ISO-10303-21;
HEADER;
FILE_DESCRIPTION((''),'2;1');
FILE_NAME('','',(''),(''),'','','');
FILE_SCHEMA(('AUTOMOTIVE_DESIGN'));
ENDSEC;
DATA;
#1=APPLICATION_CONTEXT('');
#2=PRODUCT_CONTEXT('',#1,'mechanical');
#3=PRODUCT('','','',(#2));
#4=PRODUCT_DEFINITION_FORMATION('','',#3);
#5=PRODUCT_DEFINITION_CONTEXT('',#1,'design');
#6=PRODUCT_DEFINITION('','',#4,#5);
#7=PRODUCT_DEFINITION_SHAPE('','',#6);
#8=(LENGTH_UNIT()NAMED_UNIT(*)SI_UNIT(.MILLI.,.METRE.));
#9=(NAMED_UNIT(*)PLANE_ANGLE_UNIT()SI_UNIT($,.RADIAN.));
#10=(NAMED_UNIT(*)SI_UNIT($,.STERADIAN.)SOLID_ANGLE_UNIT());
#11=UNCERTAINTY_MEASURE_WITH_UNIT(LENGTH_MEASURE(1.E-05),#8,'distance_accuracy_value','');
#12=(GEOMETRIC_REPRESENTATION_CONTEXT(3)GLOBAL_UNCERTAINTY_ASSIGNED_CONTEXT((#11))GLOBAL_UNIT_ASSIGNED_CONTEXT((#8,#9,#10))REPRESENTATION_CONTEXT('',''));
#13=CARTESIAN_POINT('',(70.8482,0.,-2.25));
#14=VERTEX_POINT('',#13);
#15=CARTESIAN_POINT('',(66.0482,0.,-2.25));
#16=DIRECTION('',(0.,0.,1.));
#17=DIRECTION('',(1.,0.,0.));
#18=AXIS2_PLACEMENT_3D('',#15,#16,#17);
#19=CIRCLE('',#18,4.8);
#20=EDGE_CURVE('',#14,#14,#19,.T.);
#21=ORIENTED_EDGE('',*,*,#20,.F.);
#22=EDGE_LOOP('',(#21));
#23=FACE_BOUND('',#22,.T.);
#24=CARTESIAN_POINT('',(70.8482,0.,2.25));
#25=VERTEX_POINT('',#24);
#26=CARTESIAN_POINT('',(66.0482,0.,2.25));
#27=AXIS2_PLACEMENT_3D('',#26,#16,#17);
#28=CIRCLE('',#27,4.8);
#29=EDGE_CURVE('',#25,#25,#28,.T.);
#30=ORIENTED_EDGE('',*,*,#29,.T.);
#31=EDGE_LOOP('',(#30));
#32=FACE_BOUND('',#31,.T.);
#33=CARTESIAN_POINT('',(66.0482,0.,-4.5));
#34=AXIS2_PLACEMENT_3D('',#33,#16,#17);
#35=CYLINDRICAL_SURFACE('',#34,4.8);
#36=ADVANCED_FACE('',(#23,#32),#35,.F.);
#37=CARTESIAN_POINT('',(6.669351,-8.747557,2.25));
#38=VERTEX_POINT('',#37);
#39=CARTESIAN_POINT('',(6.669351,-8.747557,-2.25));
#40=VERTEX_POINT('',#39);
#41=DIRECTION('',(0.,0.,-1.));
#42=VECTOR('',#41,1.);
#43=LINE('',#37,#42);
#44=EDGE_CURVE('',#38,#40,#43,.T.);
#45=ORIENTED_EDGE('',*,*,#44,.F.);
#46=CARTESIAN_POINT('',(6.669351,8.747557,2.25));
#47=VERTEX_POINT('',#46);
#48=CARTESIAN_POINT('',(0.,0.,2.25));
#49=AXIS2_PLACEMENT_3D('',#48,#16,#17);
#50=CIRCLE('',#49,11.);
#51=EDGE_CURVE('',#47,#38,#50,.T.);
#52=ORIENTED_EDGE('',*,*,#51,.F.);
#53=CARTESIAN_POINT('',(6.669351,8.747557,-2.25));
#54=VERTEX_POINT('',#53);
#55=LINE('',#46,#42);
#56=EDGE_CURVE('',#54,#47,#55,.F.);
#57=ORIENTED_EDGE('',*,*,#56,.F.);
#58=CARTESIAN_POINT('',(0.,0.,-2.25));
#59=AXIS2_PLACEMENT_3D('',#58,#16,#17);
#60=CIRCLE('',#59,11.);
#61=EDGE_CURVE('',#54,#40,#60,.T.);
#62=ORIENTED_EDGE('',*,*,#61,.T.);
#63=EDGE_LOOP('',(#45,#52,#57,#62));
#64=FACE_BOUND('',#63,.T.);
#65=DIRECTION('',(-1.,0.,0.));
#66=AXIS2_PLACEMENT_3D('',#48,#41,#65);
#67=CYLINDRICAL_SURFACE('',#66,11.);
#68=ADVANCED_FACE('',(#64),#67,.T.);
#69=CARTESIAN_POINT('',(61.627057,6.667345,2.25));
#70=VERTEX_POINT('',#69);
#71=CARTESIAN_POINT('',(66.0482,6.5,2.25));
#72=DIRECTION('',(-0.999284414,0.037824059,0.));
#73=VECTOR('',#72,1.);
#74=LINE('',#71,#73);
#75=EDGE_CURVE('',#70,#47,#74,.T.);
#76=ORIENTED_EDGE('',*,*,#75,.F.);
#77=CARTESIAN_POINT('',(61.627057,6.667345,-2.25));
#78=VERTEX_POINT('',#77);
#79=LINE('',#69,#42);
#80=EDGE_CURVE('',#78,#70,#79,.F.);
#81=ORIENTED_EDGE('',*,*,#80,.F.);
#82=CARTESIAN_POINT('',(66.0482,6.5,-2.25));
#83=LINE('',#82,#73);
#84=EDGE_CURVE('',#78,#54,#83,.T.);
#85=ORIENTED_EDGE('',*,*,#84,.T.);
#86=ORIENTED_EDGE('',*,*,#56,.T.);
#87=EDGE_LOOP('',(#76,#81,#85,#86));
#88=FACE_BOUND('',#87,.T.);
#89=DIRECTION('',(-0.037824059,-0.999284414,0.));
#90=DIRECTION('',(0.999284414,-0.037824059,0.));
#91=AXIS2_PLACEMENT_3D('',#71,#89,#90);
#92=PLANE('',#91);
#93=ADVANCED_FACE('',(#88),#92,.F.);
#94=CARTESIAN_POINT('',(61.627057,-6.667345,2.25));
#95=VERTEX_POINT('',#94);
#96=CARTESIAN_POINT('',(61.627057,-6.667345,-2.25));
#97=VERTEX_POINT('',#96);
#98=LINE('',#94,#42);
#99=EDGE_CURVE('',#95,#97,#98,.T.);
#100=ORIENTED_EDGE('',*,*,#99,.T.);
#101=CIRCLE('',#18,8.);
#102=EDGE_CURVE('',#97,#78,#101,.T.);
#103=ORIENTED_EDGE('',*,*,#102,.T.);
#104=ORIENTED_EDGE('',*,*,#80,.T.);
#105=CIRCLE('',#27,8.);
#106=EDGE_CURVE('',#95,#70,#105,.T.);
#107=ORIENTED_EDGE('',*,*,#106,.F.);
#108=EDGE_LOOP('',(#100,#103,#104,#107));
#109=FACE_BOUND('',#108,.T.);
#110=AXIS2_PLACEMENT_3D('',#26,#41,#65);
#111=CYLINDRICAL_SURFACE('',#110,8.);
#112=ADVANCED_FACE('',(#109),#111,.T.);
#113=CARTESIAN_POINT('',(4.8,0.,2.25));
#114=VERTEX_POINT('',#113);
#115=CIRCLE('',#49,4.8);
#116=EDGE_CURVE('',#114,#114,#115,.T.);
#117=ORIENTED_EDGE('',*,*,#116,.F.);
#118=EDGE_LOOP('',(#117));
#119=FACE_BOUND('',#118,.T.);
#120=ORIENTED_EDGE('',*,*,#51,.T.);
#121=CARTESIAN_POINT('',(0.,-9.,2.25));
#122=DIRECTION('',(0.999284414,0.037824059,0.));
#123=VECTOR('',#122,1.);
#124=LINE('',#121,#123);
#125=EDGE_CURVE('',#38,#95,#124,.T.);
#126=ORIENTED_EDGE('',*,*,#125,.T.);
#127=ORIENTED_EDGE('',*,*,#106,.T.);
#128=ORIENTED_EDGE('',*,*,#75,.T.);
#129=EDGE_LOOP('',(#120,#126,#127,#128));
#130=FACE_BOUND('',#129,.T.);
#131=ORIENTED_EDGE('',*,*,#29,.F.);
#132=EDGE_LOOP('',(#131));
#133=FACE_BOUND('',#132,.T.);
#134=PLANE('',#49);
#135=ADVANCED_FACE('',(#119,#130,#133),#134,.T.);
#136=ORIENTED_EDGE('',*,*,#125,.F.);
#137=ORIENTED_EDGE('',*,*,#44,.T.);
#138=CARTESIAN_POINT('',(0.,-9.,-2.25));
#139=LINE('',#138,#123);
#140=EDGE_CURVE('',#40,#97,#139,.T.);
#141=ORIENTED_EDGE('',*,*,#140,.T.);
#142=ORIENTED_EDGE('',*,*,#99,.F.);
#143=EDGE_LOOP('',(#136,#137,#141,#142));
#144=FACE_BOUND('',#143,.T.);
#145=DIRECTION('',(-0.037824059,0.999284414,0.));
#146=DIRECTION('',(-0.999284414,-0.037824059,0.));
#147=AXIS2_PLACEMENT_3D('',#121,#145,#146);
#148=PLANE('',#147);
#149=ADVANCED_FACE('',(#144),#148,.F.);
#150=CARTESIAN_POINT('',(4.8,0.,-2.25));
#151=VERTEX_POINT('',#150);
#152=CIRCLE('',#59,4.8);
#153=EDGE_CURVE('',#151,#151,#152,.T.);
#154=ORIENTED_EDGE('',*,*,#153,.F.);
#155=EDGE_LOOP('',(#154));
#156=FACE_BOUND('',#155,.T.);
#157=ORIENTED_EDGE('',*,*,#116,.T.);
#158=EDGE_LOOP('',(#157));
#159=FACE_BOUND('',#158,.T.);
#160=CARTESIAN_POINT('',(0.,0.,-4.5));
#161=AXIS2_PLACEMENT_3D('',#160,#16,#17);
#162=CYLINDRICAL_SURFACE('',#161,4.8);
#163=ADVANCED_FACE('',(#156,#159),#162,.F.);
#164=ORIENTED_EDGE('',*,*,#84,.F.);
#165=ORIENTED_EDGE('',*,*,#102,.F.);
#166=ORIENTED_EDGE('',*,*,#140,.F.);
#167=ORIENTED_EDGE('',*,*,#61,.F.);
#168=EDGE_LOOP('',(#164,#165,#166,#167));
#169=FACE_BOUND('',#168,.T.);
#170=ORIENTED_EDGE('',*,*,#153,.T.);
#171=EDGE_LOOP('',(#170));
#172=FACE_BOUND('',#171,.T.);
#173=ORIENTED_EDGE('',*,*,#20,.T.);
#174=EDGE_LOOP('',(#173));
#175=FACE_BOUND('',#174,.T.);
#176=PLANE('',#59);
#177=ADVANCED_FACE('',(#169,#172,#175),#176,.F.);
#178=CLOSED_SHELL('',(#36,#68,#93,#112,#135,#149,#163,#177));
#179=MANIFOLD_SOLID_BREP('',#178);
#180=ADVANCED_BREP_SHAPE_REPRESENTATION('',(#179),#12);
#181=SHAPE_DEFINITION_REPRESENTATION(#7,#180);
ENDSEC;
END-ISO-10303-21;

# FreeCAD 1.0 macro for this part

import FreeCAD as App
import Part
import Sketcher

doc = App.newDocument("Part")
body = doc.addObject("PartDesign::Body", "Body")

sketch1 = body.newObject("Sketcher::SketchObject", "Sketch")
sketch1.AttachmentSupport = (doc.getObject("XY_Plane"), [""])
sketch1.MapMode = "FlatFace"
sketch1.addGeometry(Part.Circle(App.Vector(0, 0, 0), App.Vector(0, 0, 1), 11), False)
sketch1.addConstraint(Sketcher.Constraint("Coincident", 0, 3, -1, 1))
sketch1.addConstraint(Sketcher.Constraint("Diameter", 0, 22.0))
pad1 = body.newObject("PartDesign::Pad", "Pad")
pad1.Profile = sketch1
pad1.Length = 4.5
pad1.Midplane = True
body2 = doc.addObject("PartDesign::Body", "Body001")

sketch2 = body2.newObject("Sketcher::SketchObject", "Sketch001")
sketch2.AttachmentSupport = (doc.getObject("XY_Plane001"), [""])
sketch2.MapMode = "FlatFace"
sketch2.addGeometry(Part.Circle(App.Vector(66.0482, 0, 0), App.Vector(0, 0, 1), 8), False)
sketch2.addConstraint(Sketcher.Constraint("PointOnObject", 0, 3, -1))
sketch2.addConstraint(Sketcher.Constraint("Diameter", 0, 16.0))
sketch2.addConstraint(Sketcher.Constraint("DistanceX", -1, 1, 0, 3, 66.0482))
pad2 = body2.newObject("PartDesign::Pad", "Pad001")
pad2.Profile = sketch2
pad2.Length = 4.5
pad2.Midplane = True
body.AllowCompound = True
doc.recompute()

boolean = body.newObject("PartDesign::Boolean", "Boolean")
boolean.Type = "Fuse"
boolean.addObjects([body2])

sketch3 = body.newObject("Sketcher::SketchObject", "Sketch002")
sketch3.AttachmentSupport = (doc.getObject("XY_Plane"), [""])
sketch3.MapMode = "FlatFace"
sketch3.addGeometry(Part.LineSegment(App.Vector(0, -9, 0), App.Vector(66.0482, -6.5, 0)), False)
sketch3.addGeometry(Part.LineSegment(App.Vector(66.0482, -6.5, 0), App.Vector(66.0482, 6.5, 0)), False)
sketch3.addGeometry(Part.LineSegment(App.Vector(66.0482, 6.5, 0), App.Vector(0, 9, 0)), False)
sketch3.addGeometry(Part.LineSegment(App.Vector(0, 9, 0), App.Vector(0, -9, 0)), False)
sketch3.addConstraint(Sketcher.Constraint("Coincident", 0, 2, 1, 1))
sketch3.addConstraint(Sketcher.Constraint("Coincident", 1, 2, 2, 1))
sketch3.addConstraint(Sketcher.Constraint("Coincident", 2, 2, 3, 1))
sketch3.addConstraint(Sketcher.Constraint("Coincident", 3, 2, 0, 1))
sketch3.addConstraint(Sketcher.Constraint("Vertical", 1))
sketch3.addConstraint(Sketcher.Constraint("Vertical", 3))
sketch3.addConstraint(Sketcher.Constraint("Symmetric", 2, 2, 3, 2, -1, 1))
sketch3.addConstraint(Sketcher.Constraint("Equal", 0, 2))
sketch3.addConstraint(Sketcher.Constraint("DistanceY", 1, 1, 1, 2, 13.0))
sketch3.addConstraint(Sketcher.Constraint("DistanceY", 3, 2, 3, 1, 18.0))
sketch3.addConstraint(Sketcher.Constraint("DistanceX", -1, 1, 0, 2, 66.0482))
pad3 = body.newObject("PartDesign::Pad", "Pad002")
pad3.Profile = sketch3
pad3.Length = 4.5
pad3.Midplane = True

sketch4 = body.newObject("Sketcher::SketchObject", "Sketch003")
sketch4.AttachmentSupport = (doc.getObject("XY_Plane"), [""])
sketch4.MapMode = "FlatFace"
sketch4.addGeometry(Part.Circle(App.Vector(0, 0, 0), App.Vector(0, 0, 1), 4.8), False)
sketch4.addGeometry(Part.Circle(App.Vector(66.0482, 0, 0), App.Vector(0, 0, 1), 4.8), False)
sketch4.addConstraint(Sketcher.Constraint("Coincident", 0, 3, -1, 1))
sketch4.addConstraint(Sketcher.Constraint("Equal", 0, 1))
sketch4.addConstraint(Sketcher.Constraint("PointOnObject", 1, 3, -1))
sketch4.addConstraint(Sketcher.Constraint("Diameter", 0, 9.6))
sketch4.addConstraint(Sketcher.Constraint("DistanceX", -1, 1, 1, 3, 66.0482))
pocket1 = body.newObject("PartDesign::Pocket", "Pocket")
pocket1.Profile = sketch4
pocket1.Length = 9
pocket1.Midplane = True

doc.recompute()
